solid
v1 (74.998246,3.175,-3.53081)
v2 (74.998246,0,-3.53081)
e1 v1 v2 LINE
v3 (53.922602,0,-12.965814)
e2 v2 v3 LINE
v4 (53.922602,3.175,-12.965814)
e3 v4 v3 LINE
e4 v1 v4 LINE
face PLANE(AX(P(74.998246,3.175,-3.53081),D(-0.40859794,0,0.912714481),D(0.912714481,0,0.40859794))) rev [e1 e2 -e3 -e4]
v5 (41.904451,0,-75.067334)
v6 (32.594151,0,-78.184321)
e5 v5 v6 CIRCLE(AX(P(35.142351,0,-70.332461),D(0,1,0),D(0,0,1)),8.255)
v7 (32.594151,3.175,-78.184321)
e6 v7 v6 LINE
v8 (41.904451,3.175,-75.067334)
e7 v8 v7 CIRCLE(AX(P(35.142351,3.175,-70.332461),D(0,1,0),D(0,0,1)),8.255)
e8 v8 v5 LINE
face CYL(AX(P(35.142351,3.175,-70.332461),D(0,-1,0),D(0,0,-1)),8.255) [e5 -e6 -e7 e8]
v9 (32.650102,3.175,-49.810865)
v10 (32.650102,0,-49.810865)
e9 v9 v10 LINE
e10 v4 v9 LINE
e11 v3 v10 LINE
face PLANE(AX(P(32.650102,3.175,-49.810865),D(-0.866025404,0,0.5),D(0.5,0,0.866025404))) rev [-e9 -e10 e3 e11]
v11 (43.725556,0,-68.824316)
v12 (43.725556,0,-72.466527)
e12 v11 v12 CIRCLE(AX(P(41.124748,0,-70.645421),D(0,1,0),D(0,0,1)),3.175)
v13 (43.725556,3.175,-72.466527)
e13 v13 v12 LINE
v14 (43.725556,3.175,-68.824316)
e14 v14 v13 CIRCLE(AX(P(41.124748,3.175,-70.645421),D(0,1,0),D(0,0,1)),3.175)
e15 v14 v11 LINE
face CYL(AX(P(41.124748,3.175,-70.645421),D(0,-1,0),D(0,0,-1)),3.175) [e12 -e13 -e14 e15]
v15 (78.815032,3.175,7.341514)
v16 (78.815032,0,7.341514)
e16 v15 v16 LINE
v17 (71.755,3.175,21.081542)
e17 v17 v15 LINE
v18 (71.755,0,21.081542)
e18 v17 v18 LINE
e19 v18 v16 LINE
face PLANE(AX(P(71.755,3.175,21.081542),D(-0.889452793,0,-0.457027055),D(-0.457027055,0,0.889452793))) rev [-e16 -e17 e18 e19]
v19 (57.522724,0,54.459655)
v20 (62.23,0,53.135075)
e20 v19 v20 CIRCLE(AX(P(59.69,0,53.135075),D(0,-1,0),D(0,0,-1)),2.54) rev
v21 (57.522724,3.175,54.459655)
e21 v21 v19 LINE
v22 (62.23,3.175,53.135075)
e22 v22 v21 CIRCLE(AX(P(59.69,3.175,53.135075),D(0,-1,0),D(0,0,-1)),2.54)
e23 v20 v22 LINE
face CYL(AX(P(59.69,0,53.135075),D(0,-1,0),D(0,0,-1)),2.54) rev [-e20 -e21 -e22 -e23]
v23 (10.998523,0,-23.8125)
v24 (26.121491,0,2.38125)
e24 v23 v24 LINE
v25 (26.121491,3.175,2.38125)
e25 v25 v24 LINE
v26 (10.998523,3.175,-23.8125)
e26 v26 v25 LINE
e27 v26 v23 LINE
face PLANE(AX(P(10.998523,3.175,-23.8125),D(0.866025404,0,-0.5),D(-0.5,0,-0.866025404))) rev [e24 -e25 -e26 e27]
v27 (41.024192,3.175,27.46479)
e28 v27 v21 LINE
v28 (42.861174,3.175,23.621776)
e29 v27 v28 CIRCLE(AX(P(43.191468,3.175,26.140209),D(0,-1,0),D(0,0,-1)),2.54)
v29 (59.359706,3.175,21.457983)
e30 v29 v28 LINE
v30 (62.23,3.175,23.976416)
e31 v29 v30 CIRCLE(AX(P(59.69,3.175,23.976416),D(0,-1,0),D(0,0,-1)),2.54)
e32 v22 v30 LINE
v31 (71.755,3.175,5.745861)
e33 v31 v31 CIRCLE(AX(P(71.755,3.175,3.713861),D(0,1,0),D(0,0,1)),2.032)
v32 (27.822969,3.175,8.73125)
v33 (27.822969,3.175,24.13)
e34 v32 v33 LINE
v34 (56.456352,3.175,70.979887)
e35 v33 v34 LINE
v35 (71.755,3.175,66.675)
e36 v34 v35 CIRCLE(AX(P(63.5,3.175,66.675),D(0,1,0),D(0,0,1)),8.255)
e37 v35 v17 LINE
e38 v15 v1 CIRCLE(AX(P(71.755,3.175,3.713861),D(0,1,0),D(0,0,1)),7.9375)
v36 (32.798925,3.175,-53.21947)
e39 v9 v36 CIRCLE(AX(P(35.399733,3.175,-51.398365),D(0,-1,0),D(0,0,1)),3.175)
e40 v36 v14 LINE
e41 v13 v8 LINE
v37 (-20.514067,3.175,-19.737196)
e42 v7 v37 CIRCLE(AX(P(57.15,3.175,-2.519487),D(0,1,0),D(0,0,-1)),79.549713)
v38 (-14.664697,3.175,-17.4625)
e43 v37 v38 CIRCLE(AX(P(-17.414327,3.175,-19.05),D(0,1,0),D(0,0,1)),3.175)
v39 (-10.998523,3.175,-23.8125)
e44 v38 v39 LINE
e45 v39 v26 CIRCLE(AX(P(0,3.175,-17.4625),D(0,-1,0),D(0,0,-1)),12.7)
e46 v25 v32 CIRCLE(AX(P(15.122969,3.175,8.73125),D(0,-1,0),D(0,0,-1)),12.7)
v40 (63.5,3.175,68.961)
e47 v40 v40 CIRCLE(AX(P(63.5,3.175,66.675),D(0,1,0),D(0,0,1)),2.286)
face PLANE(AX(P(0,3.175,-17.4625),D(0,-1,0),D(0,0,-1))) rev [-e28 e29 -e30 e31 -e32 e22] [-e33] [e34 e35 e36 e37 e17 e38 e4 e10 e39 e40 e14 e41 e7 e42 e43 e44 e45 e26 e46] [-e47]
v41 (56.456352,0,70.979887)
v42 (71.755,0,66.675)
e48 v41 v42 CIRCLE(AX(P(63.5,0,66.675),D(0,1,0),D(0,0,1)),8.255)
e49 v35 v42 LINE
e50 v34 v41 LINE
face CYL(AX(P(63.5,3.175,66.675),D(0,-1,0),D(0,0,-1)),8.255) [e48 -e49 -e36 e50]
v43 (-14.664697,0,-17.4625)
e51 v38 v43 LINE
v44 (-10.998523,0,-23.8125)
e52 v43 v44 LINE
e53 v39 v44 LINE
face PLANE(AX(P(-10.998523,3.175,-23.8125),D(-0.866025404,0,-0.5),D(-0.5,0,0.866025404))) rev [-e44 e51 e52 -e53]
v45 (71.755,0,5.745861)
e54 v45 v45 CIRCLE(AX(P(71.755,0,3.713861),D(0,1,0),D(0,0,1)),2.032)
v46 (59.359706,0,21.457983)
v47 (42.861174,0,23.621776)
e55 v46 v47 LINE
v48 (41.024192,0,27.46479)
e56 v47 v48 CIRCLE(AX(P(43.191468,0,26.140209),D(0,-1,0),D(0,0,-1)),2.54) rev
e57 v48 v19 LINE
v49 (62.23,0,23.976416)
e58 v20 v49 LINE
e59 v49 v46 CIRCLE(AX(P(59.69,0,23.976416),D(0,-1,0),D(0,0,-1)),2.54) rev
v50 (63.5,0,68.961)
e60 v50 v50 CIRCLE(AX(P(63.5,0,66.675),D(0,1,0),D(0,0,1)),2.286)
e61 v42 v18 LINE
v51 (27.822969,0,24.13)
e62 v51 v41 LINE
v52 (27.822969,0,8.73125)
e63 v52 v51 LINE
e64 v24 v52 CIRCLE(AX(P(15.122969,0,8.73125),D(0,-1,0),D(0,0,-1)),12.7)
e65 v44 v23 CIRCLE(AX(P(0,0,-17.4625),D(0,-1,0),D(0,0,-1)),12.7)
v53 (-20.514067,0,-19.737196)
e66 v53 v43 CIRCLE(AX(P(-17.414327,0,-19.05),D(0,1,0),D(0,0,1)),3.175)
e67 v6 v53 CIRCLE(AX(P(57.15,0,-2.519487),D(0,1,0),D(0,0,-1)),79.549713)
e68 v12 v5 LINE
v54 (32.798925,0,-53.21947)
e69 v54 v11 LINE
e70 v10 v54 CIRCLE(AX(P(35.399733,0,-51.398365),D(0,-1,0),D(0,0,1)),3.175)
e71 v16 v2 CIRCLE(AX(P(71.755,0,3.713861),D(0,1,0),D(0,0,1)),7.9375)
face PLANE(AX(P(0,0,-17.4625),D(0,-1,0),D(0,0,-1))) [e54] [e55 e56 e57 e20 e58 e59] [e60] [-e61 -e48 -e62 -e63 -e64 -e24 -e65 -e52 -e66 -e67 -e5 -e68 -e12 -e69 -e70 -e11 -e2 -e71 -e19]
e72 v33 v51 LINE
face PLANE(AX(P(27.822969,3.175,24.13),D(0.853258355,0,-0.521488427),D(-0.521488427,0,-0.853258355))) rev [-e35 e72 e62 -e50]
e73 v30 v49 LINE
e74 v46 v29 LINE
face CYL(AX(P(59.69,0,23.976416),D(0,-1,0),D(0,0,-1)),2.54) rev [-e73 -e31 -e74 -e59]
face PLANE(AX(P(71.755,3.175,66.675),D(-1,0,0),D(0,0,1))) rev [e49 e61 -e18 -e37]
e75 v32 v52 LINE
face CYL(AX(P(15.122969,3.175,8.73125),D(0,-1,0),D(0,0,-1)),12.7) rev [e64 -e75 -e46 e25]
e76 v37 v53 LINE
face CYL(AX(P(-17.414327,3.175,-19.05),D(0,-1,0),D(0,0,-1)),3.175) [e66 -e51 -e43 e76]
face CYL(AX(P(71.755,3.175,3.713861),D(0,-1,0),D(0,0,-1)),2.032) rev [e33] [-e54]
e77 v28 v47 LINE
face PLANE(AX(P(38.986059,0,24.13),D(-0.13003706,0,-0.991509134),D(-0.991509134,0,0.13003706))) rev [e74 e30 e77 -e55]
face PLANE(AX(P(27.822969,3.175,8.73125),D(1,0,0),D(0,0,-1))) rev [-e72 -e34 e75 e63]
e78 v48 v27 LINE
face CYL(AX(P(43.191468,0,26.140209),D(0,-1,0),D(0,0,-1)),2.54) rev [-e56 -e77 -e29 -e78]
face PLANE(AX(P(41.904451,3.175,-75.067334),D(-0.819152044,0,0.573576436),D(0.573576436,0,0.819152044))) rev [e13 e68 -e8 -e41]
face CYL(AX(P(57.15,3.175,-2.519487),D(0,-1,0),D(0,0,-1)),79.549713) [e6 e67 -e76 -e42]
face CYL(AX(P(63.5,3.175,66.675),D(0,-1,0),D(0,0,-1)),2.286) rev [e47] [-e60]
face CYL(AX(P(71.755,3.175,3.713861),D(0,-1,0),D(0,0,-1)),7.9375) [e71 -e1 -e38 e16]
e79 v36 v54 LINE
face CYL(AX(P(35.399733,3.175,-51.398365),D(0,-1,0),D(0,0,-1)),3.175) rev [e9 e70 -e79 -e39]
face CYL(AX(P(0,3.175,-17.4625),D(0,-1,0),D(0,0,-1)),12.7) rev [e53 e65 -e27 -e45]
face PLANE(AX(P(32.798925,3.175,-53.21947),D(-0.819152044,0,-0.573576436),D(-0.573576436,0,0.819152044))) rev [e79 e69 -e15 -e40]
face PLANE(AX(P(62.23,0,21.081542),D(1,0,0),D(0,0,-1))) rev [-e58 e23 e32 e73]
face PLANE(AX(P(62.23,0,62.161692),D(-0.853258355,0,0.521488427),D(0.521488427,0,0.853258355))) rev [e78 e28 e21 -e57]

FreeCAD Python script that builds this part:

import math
import FreeCAD as App
import Part
import Sketcher
Q = App.Units.Quantity


def edges_at(feature, points):
    """Names of the edges that pass closest to the given points."""
    edges = feature.Shape.Edges
    near = lambda p: min(range(len(edges)), key=lambda i: edges[i].distToShape(Part.Vertex(*p))[0])
    return sorted({f"Edge{near(p) + 1}" for p in points})


def add_polygon(sketch, points):
    """Adds a closed chain of lines whose ends are joined by coincident constraints."""
    first, n = sketch.GeometryCount, len(points)
    for a, b in zip(points, points[1:] + points[:1]):
        sketch.addGeometry(Part.LineSegment(App.Vector(*a, 0), App.Vector(*b, 0)), False)
    for i in range(n):
        sketch.addConstraint(Sketcher.Constraint("Coincident", first + i, 2, first + (i + 1) % n, 1))

doc = App.newDocument("Part")
params = doc.addObject("Spreadsheet::Sheet", "Params")
for row, (alias, value) in enumerate([
    ("sketch1_radius", "0.5 in"),
    ("sketch1_diameter", "0.18 in"),
    ("sketch1_diameter2", "0.16 in"),
    ("sketch1_radius2", "0.325 in"),
    ("sketch1_radius3", "0.3125 in"),
    ("pad1_length", "0.125 in"),
    ("fillet_radius", "0.1 in"),
], start=1):
    params.set(f"A{row}", alias)
    params.set(f"B{row}", "=" + value)
    params.setAlias(f"B{row}", alias)

body = doc.addObject("PartDesign::Body", "Body")

# Sketch on XZ plane
sketch1 = doc.addObject("Sketcher::SketchObject", "Sketch")
body.addObject(sketch1)
sketch1.AttachmentSupport = (doc.XZ_Plane, [""])
sketch1.MapMode = "FlatFace"
sketch1.addGeometry(Part.LineSegment(App.Vector(-14.7, -17.5, 0), App.Vector(-11, -23.8, 0)), False)
sketch1.addGeometry(Part.ArcOfCircle(Part.Circle(App.Vector(0, -17.5, 0), App.Vector(0, 0, 1), 12.7), math.radians(-150), math.radians(-30)), False)
sketch1.addGeometry(Part.LineSegment(App.Vector(11, -23.8, 0), App.Vector(26.1, 2.4, 0)), False)
sketch1.addGeometry(Part.ArcOfCircle(Part.Circle(App.Vector(15.1, 8.7, 0), App.Vector(0, 0, 1), 12.7), math.radians(-30), math.radians(0)), False)
sketch1.addGeometry(Part.LineSegment(App.Vector(27.8, 8.7, 0), App.Vector(27.8, 24.1, 0)), False)
sketch1.addGeometry(Part.LineSegment(App.Vector(27.8, 24.1, 0), App.Vector(56.5, 71, 0)), False)
sketch1.addGeometry(Part.ArcOfCircle(Part.Circle(App.Vector(63.5, 66.7, 0), App.Vector(0, 0, 1), 8.3), math.radians(0), math.radians(149)), False)
sketch1.addGeometry(Part.LineSegment(App.Vector(71.8, 66.7, 0), App.Vector(71.8, 21.1, 0)), False)
sketch1.addGeometry(Part.LineSegment(App.Vector(71.8, 21.1, 0), App.Vector(78.8, 7.3, 0)), False)
sketch1.addGeometry(Part.ArcOfCircle(Part.Circle(App.Vector(71.8, 3.7, 0), App.Vector(0, 0, 1), 7.9), math.radians(-66), math.radians(27)), False)
sketch1.addGeometry(Part.LineSegment(App.Vector(75, -3.5, 0), App.Vector(53.9, -13, 0)), False)
sketch1.addGeometry(Part.LineSegment(App.Vector(53.9, -13, 0), App.Vector(32.7, -49.8, 0)), False)
sketch1.addGeometry(Part.ArcOfCircle(Part.Circle(App.Vector(35.4, -51.4, 0), App.Vector(0, 0, 1), 3.2), math.radians(150), math.radians(215)), False)
sketch1.addGeometry(Part.LineSegment(App.Vector(32.8, -53.2, 0), App.Vector(43.7, -68.8, 0)), False)
sketch1.addGeometry(Part.ArcOfCircle(Part.Circle(App.Vector(41.1, -70.6, 0), App.Vector(0, 0, 1), 3.2), math.radians(-35), math.radians(35)), False)
sketch1.addGeometry(Part.LineSegment(App.Vector(43.7, -72.5, 0), App.Vector(41.9, -75.1, 0)), False)
sketch1.addGeometry(Part.ArcOfCircle(Part.Circle(App.Vector(35.1, -70.3, 0), App.Vector(0, 0, 1), 8.3), math.radians(-108), math.radians(-35)), False)
sketch1.addGeometry(Part.ArcOfCircle(Part.Circle(App.Vector(57.2, -2.5, 0), App.Vector(0, 0, 1), 79.5), math.radians(-167), math.radians(-108)), False)
sketch1.addGeometry(Part.ArcOfCircle(Part.Circle(App.Vector(-17.4, -19.1, 0), App.Vector(0, 0, 1), 3.2), math.radians(30), math.radians(192)), False)
sketch1.addGeometry(Part.Circle(App.Vector(63.5, 66.7, 0), App.Vector(0, 0, 1), 2.3), False)
sketch1.addGeometry(Part.Circle(App.Vector(71.8, 3.7, 0), App.Vector(0, 0, 1), 2), False)
sketch1.addConstraint(Sketcher.Constraint("Tangent", 0, 2, 1, 1))
sketch1.addConstraint(Sketcher.Constraint("Tangent", 1, 2, 2, 1))
sketch1.addConstraint(Sketcher.Constraint("Tangent", 2, 2, 3, 1))
sketch1.addConstraint(Sketcher.Constraint("Tangent", 3, 2, 4, 1))
sketch1.addConstraint(Sketcher.Constraint("Coincident", 4, 2, 5, 1))
sketch1.addConstraint(Sketcher.Constraint("Tangent", 5, 2, 6, 2))
sketch1.addConstraint(Sketcher.Constraint("Tangent", 6, 1, 7, 1))
sketch1.addConstraint(Sketcher.Constraint("Coincident", 7, 2, 8, 1))
sketch1.addConstraint(Sketcher.Constraint("Tangent", 8, 2, 9, 2))
sketch1.addConstraint(Sketcher.Constraint("Tangent", 9, 1, 10, 1))
sketch1.addConstraint(Sketcher.Constraint("Coincident", 10, 2, 11, 1))
sketch1.addConstraint(Sketcher.Constraint("Tangent", 11, 2, 12, 1))
sketch1.addConstraint(Sketcher.Constraint("Tangent", 12, 2, 13, 1))
sketch1.addConstraint(Sketcher.Constraint("Tangent", 13, 2, 14, 2))
sketch1.addConstraint(Sketcher.Constraint("Tangent", 14, 1, 15, 1))
sketch1.addConstraint(Sketcher.Constraint("Tangent", 15, 2, 16, 2))
sketch1.addConstraint(Sketcher.Constraint("Tangent", 16, 1, 17, 2))
sketch1.addConstraint(Sketcher.Constraint("Tangent", 17, 1, 18, 2))
sketch1.addConstraint(Sketcher.Constraint("Tangent", 18, 1, 0, 1))
sketch1.addConstraint(Sketcher.Constraint("Vertical", 4))
sketch1.addConstraint(Sketcher.Constraint("Vertical", 7))
sketch1.addConstraint(Sketcher.Constraint("Coincident", 19, 3, 6, 3))
sketch1.addConstraint(Sketcher.Constraint("Coincident", 20, 3, 9, 3))
sketch1.addConstraint(Sketcher.Constraint("Equal", 1, 3))
sketch1.addConstraint(Sketcher.Constraint("Equal", 12, 14))
sketch1.addConstraint(Sketcher.Constraint("Equal", 6, 16))
sketch1.addConstraint(Sketcher.Constraint("Equal", 14, 18))
sketch1.addConstraint(Sketcher.Constraint("Symmetric", 0, 2, 1, 2, -2))
sketch1.addConstraint(Sketcher.Constraint("Parallel", 2, 11))
sketch1.addConstraint(Sketcher.Constraint("Horizontal", 1, 3, 18, 1))
sketch1.addConstraint(Sketcher.Constraint("Vertical", 20, 3, 6, 1))
sketch1.addConstraint(Sketcher.Constraint("Vertical", 13, 2, 14, 1))
sketch1.addConstraint(Sketcher.Constraint("Radius", 1, Q("0.5 in")))
sketch1.addConstraint(Sketcher.Constraint("Diameter", 19, Q("0.18 in")))
sketch1.addConstraint(Sketcher.Constraint("Diameter", 20, Q("0.16 in")))
sketch1.addConstraint(Sketcher.Constraint("Angle", 0, Q("-60 deg")))
sketch1.addConstraint(Sketcher.Constraint("Angle", 13, Q("-55 deg")))
sketch1.addConstraint(Sketcher.Constraint("Radius", 6, Q("0.325 in")))
sketch1.addConstraint(Sketcher.Constraint("Radius", 9, Q("0.3125 in")))
sketch1.addConstraint(Sketcher.Constraint("Radius", 12, Q("0.125 in")))
sketch1.addConstraint(Sketcher.Constraint("DistanceX", -1, 1, 6, 3, Q("2.5 in")))
sketch1.addConstraint(Sketcher.Constraint("Distance", 13, Q("0.75 in")))
sketch1.addConstraint(Sketcher.Constraint("DistanceX", -1, 1, 17, 3, Q("2.25 in")))
sketch1.addConstraint(Sketcher.Constraint("DistanceY", 18, 3, -1, 1, Q("0.75 in")))
sketch1.addConstraint(Sketcher.Constraint("DistanceY", -1, 1, 4, 2, Q("0.95 in")))
sketch1.addConstraint(Sketcher.Constraint("Distance", 11, Q("1.675 in")))
sketch1.addConstraint(Sketcher.Constraint("Distance", 15, Q("0.125 in")))
sketch1.addConstraint(Sketcher.Constraint("DistanceY", -1, 1, 3, 3, Q("0.34375 in")))
sketch1.addConstraint(Sketcher.Constraint("DistanceY", -1, 1, 6, 3, Q("2.625 in")))
sketch1.addConstraint(Sketcher.Constraint("Radius", 17, 79.549713))
sketch1.addConstraint(Sketcher.Constraint("DistanceX", -1, 1, 10, 2, 53.922602))
sketch1.addConstraint(Sketcher.Constraint("DistanceY", 17, 3, 8, 2, 9.861))
sketch1.addConstraint(Sketcher.Constraint("Distance", 10, 23.091169))
sketch1.setExpression("Constraints[32]", "Params.sketch1_radius")
sketch1.setExpression("Constraints[33]", "Params.sketch1_diameter")
sketch1.setExpression("Constraints[34]", "Params.sketch1_diameter2")
sketch1.setExpression("Constraints[37]", "Params.sketch1_radius2")
sketch1.setExpression("Constraints[38]", "Params.sketch1_radius3")
pad1 = doc.addObject("PartDesign::Pad", "Pad")
body.addObject(pad1)
pad1.Profile = sketch1
pad1.setExpression("Length", "Params.pad1_length")
pad1.Reversed = True

# Sketch on XZ plane
sketch2 = doc.addObject("Sketcher::SketchObject", "Sketch001")
body.addObject(sketch2)
sketch2.AttachmentSupport = (doc.XZ_Plane, [""])
sketch2.MapMode = "FlatFace"
sketch2.AttachmentOffset = App.Placement(App.Vector(0, 0, -0.125 * 25.4), App.Rotation())
add_polygon(sketch2, [(62, 21), (39, 24), (62, 62)])  # lines 0-2
sketch2.addConstraint(Sketcher.Constraint("Vertical", 2))
sketch2.addConstraint(Sketcher.Constraint("DistanceY", -1, 1, 0, 2, Q("0.95 in")))
sketch2.addConstraint(Sketcher.Constraint("DistanceX", -1, 1, 1, 2, Q("2.45 in")))
sketch2.addConstraint(Sketcher.Constraint("DistanceY", 2, 2, 2, 1, 41.080149))
sketch2.addConstraint(Sketcher.Constraint("DistanceX", -1, 1, 0, 2, 38.986059))
sketch2.addConstraint(Sketcher.Constraint("DistanceY", -1, 1, 1, 2, 62.161692))
pocket1 = doc.addObject("PartDesign::Pocket", "Pocket")
body.addObject(pocket1)
pocket1.Profile = sketch2
pocket1.Type = "ThroughAll"
pocket1.Reversed = True
doc.recompute()

fillet = doc.addObject("PartDesign::Fillet", "Fillet")
body.addObject(fillet)
fillet.Base = (pocket1, edges_at(pocket1, [(62.23, 1.587, 62.162), (38.986, 1.587, 24.13), (62.23, 1.587, 21.082)]))
fillet.setExpression("Radius", "Params.fillet_radius")

doc.recompute()
